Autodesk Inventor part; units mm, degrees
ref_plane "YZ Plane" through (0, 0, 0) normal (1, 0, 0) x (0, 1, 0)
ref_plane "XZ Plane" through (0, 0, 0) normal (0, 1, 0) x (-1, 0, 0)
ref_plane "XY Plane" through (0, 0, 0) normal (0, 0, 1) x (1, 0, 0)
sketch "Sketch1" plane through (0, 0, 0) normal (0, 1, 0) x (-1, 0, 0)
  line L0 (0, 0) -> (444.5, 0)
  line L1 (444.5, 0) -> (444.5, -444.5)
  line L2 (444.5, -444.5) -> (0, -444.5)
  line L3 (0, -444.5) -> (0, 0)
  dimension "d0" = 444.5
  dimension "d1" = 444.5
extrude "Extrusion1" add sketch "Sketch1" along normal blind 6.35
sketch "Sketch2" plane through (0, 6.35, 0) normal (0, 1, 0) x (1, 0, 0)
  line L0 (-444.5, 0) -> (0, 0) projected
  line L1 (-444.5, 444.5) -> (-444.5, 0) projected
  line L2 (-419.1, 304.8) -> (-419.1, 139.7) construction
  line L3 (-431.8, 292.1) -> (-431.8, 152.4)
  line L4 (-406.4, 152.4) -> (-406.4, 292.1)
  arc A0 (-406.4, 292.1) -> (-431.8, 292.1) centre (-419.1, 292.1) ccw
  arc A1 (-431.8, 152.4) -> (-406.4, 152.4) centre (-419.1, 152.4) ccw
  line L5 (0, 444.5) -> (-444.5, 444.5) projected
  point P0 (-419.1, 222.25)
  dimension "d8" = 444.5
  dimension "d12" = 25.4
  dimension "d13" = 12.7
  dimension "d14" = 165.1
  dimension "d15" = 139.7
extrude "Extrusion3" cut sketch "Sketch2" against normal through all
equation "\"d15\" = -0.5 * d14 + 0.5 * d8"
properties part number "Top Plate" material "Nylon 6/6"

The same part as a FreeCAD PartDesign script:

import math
import FreeCAD as App
import Part
import Sketcher
from FreeCAD import Vector
Q = App.Units.Quantity


def add_polygon(sketch, points):
    """Adds a closed chain of lines whose ends are joined by coincident constraints."""
    first, n = sketch.GeometryCount, len(points)
    for a, b in zip(points, points[1:] + points[:1]):
        sketch.addGeometry(Part.LineSegment(App.Vector(*a, 0), App.Vector(*b, 0)), False)
    for i in range(n):
        sketch.addConstraint(Sketcher.Constraint("Coincident", first + i, 2, first + (i + 1) % n, 1))

doc = App.newDocument("Part")
body = doc.addObject("PartDesign::Body", "Body")

# Sketch on XZ plane
sketch1 = doc.addObject("Sketcher::SketchObject", "Sketch")
body.addObject(sketch1)
sketch1.AttachmentSupport = (doc.XZ_Plane, [""])
sketch1.MapMode = "FlatFace"
add_polygon(sketch1, [(-444, 0), (0, 0), (0, -444), (-444, -444)])  # lines 0-3
sketch1.addConstraint([
    Sketcher.Constraint("Horizontal", 0),
    Sketcher.Constraint("Vertical", 1),
    Sketcher.Constraint("Horizontal", 2),
    Sketcher.Constraint("Vertical", 3),
    Sketcher.Constraint("Coincident", 0, 2, -1, 1),
    Sketcher.Constraint("Equal", 2, 1),
    Sketcher.Constraint("DistanceX", 0, 1, 0, 2, Q("17.5 in")),
])
pad1 = doc.addObject("PartDesign::Pad", "Pad")
body.addObject(pad1)
pad1.Profile = sketch1
pad1.Length = Q("0.25 in")
pad1.Reversed = True

# Sketch on XZ plane
sketch2 = doc.addObject("Sketcher::SketchObject", "Sketch001")
body.addObject(sketch2)
sketch2.AttachmentSupport = (doc.XZ_Plane, [""])
sketch2.MapMode = "FlatFace"
sketch2.AttachmentOffset = App.Placement(Vector(0, 0, -0.25 * 25.4), App.Rotation())
sketch2.addGeometry([
    Part.ArcOfCircle(Part.Circle(Vector(-419, -292, 0), Vector(0, 0, 1), 13), math.radians(180), math.radians(360)),
    Part.LineSegment(Vector(-432, -292, 0), Vector(-432, -152, 0)),
    Part.ArcOfCircle(Part.Circle(Vector(-419, -152, 0), Vector(0, 0, 1), 13), math.radians(0), math.radians(180)),
    Part.LineSegment(Vector(-406, -152, 0), Vector(-406, -292, 0)),
], False)
sketch2.addConstraint([
    Sketcher.Constraint("Tangent", 0, 1, 1, 1),
    Sketcher.Constraint("Tangent", 1, 2, 2, 2),
    Sketcher.Constraint("Tangent", 2, 1, 3, 1),
    Sketcher.Constraint("Tangent", 3, 2, 0, 2),
    Sketcher.Constraint("Vertical", 1),
    Sketcher.Constraint("Vertical", 3),
    Sketcher.Constraint("Radius", 0, Q("0.5 in")),
    Sketcher.Constraint("DistanceY", 1, 1, 1, 2, Q("5.5 in")),
    Sketcher.Constraint("DistanceY", 2, 3, -1, 1, Q("6 in")),
    Sketcher.Constraint("DistanceX", 0, 1, -1, 1, Q("17 in")),
])
pocket1 = doc.addObject("PartDesign::Pocket", "Pocket")
body.addObject(pocket1)
pocket1.Profile = sketch2
pocket1.Type = "ThroughAll"
pocket1.Reversed = True

doc.recompute()
